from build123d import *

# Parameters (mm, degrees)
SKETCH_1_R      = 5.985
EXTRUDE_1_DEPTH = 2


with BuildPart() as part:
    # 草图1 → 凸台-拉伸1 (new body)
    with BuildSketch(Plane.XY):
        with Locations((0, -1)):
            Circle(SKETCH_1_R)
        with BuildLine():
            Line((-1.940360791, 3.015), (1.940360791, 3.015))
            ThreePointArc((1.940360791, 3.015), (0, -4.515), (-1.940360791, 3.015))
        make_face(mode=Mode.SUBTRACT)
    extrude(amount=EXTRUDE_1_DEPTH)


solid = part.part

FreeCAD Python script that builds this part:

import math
import FreeCAD as App
import Part
import Sketcher
from FreeCAD import Vector

doc = App.newDocument("Part")
body = doc.addObject("PartDesign::Body", "Body")

sketch1 = body.newObject("Sketcher::SketchObject", "Sketch")
sketch1.AttachmentSupport = (doc.getObject("XY_Plane"), [""])
sketch1.MapMode = "FlatFace"
sketch1.addGeometry(Part.Circle(Vector(0, -1, 0), Vector(0, 0, 1), 6), False)
sketch1.addGeometry(Part.ArcOfCircle(Part.Circle(Vector(0, -0.5, 0), Vector(0, 0, 1), 4), math.radians(119), math.radians(421)), False)
sketch1.addGeometry(Part.LineSegment(Vector(-1.9, 3, 0), Vector(1.9, 3, 0)), False)
sketch1.addConstraint(Sketcher.Constraint("Coincident", 1, 1, 2, 1))
sketch1.addConstraint(Sketcher.Constraint("Coincident", 2, 2, 1, 2))
sketch1.addConstraint(Sketcher.Constraint("Horizontal", 2))
sketch1.addConstraint(Sketcher.Constraint("PointOnObject", 0, 3, -2))
sketch1.addConstraint(Sketcher.Constraint("PointOnObject", 1, 3, -2))
sketch1.addConstraint(Sketcher.Constraint("Diameter", 0, 11.97))
sketch1.addConstraint(Sketcher.Constraint("DistanceY", 0, 3, -1, 1, 1.0))
sketch1.addConstraint(Sketcher.Constraint("Radius", 1, 4.015))
sketch1.addConstraint(Sketcher.Constraint("DistanceY", 1, 3, -1, 1, 0.5))
sketch1.addConstraint(Sketcher.Constraint("DistanceY", -1, 1, 1, 1, 3.015))
pad1 = body.newObject("PartDesign::Pad", "Pad")
pad1.Profile = sketch1
pad1.Length = 2

doc.recompute()
